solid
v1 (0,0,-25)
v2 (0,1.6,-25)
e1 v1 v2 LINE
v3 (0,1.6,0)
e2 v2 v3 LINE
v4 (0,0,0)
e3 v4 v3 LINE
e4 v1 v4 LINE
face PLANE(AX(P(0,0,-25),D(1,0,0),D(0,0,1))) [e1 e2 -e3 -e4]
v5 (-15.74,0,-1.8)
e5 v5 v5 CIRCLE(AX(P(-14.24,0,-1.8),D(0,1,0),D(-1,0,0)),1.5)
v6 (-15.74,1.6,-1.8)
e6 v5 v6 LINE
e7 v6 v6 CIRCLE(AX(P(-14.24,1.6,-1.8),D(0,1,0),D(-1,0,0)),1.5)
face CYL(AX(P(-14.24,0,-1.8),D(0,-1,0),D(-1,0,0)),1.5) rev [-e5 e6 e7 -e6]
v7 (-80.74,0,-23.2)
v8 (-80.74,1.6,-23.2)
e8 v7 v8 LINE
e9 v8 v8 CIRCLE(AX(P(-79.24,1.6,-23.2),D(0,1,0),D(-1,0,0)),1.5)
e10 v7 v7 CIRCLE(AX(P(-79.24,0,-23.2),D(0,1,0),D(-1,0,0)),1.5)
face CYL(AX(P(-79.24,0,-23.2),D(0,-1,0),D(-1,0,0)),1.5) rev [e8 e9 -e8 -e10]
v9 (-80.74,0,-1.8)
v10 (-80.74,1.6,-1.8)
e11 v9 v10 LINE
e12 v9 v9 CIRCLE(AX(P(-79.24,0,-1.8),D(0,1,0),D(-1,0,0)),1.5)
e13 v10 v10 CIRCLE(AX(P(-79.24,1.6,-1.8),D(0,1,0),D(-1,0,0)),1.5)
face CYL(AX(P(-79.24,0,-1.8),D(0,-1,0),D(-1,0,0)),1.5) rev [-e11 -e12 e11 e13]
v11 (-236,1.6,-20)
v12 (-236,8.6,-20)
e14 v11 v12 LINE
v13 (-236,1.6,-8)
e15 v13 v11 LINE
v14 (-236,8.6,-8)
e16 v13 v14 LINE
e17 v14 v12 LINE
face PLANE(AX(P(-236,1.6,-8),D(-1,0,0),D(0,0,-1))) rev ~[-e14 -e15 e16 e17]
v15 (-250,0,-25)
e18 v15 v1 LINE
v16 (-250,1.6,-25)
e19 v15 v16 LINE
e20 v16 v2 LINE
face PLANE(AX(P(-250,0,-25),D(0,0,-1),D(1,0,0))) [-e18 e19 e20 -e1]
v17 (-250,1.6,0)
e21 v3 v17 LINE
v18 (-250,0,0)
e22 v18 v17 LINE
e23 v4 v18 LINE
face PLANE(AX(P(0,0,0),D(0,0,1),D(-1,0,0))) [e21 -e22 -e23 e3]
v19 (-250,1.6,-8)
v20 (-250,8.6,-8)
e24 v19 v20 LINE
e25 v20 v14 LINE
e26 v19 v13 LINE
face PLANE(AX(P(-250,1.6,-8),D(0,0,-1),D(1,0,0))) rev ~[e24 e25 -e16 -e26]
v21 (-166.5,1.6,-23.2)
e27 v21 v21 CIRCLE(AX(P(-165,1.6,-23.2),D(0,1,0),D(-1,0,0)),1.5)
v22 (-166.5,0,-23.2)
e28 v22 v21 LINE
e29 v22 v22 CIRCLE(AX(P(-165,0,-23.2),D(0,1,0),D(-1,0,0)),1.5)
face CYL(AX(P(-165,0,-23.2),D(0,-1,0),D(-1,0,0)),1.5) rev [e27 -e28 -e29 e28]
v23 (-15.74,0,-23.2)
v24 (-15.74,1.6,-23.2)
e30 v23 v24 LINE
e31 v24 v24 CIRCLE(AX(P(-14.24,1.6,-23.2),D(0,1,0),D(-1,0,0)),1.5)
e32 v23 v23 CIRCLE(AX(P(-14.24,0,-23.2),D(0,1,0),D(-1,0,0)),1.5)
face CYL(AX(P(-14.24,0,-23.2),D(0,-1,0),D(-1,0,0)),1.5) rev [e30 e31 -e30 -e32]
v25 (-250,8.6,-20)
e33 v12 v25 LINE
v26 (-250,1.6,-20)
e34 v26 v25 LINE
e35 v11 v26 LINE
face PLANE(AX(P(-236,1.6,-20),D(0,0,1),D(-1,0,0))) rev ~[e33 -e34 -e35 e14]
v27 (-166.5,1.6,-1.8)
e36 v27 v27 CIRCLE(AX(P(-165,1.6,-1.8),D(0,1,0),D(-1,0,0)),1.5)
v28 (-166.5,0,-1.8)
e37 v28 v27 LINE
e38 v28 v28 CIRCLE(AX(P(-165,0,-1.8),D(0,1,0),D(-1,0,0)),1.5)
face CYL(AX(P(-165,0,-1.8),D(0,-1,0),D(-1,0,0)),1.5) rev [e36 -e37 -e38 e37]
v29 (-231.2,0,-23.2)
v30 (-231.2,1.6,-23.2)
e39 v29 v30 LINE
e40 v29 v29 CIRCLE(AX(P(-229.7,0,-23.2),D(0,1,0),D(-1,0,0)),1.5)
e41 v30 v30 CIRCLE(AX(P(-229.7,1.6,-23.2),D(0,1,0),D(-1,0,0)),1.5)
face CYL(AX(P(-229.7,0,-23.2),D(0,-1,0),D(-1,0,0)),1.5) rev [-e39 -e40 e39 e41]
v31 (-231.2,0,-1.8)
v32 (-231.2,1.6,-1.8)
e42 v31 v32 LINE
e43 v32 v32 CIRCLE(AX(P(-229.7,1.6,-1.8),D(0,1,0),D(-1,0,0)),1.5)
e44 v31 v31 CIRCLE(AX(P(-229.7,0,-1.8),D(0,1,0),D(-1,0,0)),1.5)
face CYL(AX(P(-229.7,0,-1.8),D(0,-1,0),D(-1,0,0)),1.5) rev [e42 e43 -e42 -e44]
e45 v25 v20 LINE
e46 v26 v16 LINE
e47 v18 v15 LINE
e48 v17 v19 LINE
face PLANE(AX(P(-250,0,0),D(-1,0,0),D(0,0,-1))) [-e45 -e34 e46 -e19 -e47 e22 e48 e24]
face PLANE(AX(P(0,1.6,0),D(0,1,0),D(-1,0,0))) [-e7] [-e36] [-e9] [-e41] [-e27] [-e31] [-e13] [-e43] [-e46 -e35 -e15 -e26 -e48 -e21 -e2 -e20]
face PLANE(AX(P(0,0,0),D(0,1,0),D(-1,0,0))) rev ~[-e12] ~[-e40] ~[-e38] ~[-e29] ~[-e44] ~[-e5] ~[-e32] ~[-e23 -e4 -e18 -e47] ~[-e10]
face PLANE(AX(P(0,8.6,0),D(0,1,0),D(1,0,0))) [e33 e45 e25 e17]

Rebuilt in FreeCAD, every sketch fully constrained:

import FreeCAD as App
import Part
import Sketcher

V = App.Vector


def add_polygon(sketch, points):
    """Adds a closed chain of lines whose ends are joined by coincident constraints."""
    first, n = sketch.GeometryCount, len(points)
    for a, b in zip(points, points[1:] + points[:1]):
        sketch.addGeometry(Part.LineSegment(App.Vector(*a, 0), App.Vector(*b, 0)), False)
    for i in range(n):
        sketch.addConstraint(Sketcher.Constraint("Coincident", first + i, 2, first + (i + 1) % n, 1))

doc = App.newDocument("Part")
body = doc.addObject("PartDesign::Body", "Body")

sketch1 = body.newObject("Sketcher::SketchObject", "Sketch")
sketch1.AttachmentSupport = (doc.getObject("XZ_Plane"), [""])
sketch1.MapMode = "FlatFace"
add_polygon(sketch1, [(-250, 0), (0, 0), (0, -25), (-250, -25)])
sketch1.addGeometry(Part.Circle(V(-14.24, -23.2, 0), V(0, 0, 1), 1.5), False)
sketch1.addGeometry(Part.Circle(V(-79.24, -23.2, 0), V(0, 0, 1), 1.5), False)
sketch1.addGeometry(Part.Circle(V(-165, -23.2, 0), V(0, 0, 1), 1.5), False)
sketch1.addGeometry(Part.Circle(V(-229.7, -23.2, 0), V(0, 0, 1), 1.5), False)
sketch1.addGeometry(Part.Circle(V(-14.24, -1.8, 0), V(0, 0, 1), 1.5), False)
sketch1.addGeometry(Part.Circle(V(-79.24, -1.8, 0), V(0, 0, 1), 1.5), False)
sketch1.addGeometry(Part.Circle(V(-165, -1.8, 0), V(0, 0, 1), 1.5), False)
sketch1.addGeometry(Part.Circle(V(-229.7, -1.8, 0), V(0, 0, 1), 1.5), False)
sketch1.addConstraint([
    Sketcher.Constraint("Horizontal", 0),
    Sketcher.Constraint("Vertical", 1),
    Sketcher.Constraint("Horizontal", 2),
    Sketcher.Constraint("Vertical", 3),
    Sketcher.Constraint("Coincident", 0, 2, -1, 1),
    Sketcher.Constraint("Equal", 4, 5),
    Sketcher.Constraint("Equal", 5, 6),
    Sketcher.Constraint("Equal", 6, 7),
    Sketcher.Constraint("Equal", 7, 8),
    Sketcher.Constraint("Equal", 8, 9),
    Sketcher.Constraint("Equal", 9, 10),
    Sketcher.Constraint("Equal", 10, 11),
    Sketcher.Constraint("Horizontal", 4, 3, 5, 3),
    Sketcher.Constraint("Horizontal", 5, 3, 6, 3),
    Sketcher.Constraint("Horizontal", 6, 3, 7, 3),
    Sketcher.Constraint("Horizontal", 8, 3, 9, 3),
    Sketcher.Constraint("Horizontal", 9, 3, 10, 3),
    Sketcher.Constraint("Horizontal", 10, 3, 11, 3),
    Sketcher.Constraint("Vertical", 4, 3, 8, 3),
    Sketcher.Constraint("Vertical", 5, 3, 9, 3),
    Sketcher.Constraint("Vertical", 6, 3, 10, 3),
    Sketcher.Constraint("Vertical", 7, 3, 11, 3),
    Sketcher.Constraint("Diameter", 4, 3.0),
    Sketcher.Constraint("DistanceX", 0, 1, 0, 2, 250.0),
    Sketcher.Constraint("DistanceY", 1, 2, 1, 1, 25.0),
    Sketcher.Constraint("DistanceX", 6, 3, -1, 1, 165.0),
    Sketcher.Constraint("DistanceX", 5, 3, 4, 3, 65.0),
    Sketcher.Constraint("DistanceY", 8, 3, -1, 1, 1.8),
    Sketcher.Constraint("DistanceX", 7, 3, 6, 3, 64.7),
    Sketcher.Constraint("DistanceY", 1, 2, 4, 3, 1.8),
    Sketcher.Constraint("DistanceX", 4, 3, -1, 1, 14.24),
])
pad1 = body.newObject("PartDesign::Pad", "Pad")
pad1.Profile = sketch1
pad1.Length = 1.6
pad1.Reversed = True

sketch2 = body.newObject("Sketcher::SketchObject", "Sketch001")
sketch2.AttachmentSupport = (doc.getObject("XZ_Plane"), [""])
sketch2.MapMode = "FlatFace"
sketch2.AttachmentOffset = App.Placement(V(0, 0, -1.6), App.Rotation())
add_polygon(sketch2, [(-250, -20), (-250, -8), (-236, -8), (-236, -20)])
sketch2.addConstraint([
    Sketcher.Constraint("Vertical", 0),
    Sketcher.Constraint("Horizontal", 1),
    Sketcher.Constraint("Vertical", 2),
    Sketcher.Constraint("Horizontal", 3),
    Sketcher.Constraint("DistanceX", 1, 1, 1, 2, 14.0),
    Sketcher.Constraint("DistanceY", 0, 1, 0, 2, 12.0),
    Sketcher.Constraint("DistanceX", 0, 2, -1, 1, 250.0),
    Sketcher.Constraint("DistanceY", 0, 2, -1, 1, 8.0),
])
pad2 = body.newObject("PartDesign::Pad", "Pad001")
pad2.Profile = sketch2
pad2.Length = 7
pad2.Reversed = True

doc.recompute()
